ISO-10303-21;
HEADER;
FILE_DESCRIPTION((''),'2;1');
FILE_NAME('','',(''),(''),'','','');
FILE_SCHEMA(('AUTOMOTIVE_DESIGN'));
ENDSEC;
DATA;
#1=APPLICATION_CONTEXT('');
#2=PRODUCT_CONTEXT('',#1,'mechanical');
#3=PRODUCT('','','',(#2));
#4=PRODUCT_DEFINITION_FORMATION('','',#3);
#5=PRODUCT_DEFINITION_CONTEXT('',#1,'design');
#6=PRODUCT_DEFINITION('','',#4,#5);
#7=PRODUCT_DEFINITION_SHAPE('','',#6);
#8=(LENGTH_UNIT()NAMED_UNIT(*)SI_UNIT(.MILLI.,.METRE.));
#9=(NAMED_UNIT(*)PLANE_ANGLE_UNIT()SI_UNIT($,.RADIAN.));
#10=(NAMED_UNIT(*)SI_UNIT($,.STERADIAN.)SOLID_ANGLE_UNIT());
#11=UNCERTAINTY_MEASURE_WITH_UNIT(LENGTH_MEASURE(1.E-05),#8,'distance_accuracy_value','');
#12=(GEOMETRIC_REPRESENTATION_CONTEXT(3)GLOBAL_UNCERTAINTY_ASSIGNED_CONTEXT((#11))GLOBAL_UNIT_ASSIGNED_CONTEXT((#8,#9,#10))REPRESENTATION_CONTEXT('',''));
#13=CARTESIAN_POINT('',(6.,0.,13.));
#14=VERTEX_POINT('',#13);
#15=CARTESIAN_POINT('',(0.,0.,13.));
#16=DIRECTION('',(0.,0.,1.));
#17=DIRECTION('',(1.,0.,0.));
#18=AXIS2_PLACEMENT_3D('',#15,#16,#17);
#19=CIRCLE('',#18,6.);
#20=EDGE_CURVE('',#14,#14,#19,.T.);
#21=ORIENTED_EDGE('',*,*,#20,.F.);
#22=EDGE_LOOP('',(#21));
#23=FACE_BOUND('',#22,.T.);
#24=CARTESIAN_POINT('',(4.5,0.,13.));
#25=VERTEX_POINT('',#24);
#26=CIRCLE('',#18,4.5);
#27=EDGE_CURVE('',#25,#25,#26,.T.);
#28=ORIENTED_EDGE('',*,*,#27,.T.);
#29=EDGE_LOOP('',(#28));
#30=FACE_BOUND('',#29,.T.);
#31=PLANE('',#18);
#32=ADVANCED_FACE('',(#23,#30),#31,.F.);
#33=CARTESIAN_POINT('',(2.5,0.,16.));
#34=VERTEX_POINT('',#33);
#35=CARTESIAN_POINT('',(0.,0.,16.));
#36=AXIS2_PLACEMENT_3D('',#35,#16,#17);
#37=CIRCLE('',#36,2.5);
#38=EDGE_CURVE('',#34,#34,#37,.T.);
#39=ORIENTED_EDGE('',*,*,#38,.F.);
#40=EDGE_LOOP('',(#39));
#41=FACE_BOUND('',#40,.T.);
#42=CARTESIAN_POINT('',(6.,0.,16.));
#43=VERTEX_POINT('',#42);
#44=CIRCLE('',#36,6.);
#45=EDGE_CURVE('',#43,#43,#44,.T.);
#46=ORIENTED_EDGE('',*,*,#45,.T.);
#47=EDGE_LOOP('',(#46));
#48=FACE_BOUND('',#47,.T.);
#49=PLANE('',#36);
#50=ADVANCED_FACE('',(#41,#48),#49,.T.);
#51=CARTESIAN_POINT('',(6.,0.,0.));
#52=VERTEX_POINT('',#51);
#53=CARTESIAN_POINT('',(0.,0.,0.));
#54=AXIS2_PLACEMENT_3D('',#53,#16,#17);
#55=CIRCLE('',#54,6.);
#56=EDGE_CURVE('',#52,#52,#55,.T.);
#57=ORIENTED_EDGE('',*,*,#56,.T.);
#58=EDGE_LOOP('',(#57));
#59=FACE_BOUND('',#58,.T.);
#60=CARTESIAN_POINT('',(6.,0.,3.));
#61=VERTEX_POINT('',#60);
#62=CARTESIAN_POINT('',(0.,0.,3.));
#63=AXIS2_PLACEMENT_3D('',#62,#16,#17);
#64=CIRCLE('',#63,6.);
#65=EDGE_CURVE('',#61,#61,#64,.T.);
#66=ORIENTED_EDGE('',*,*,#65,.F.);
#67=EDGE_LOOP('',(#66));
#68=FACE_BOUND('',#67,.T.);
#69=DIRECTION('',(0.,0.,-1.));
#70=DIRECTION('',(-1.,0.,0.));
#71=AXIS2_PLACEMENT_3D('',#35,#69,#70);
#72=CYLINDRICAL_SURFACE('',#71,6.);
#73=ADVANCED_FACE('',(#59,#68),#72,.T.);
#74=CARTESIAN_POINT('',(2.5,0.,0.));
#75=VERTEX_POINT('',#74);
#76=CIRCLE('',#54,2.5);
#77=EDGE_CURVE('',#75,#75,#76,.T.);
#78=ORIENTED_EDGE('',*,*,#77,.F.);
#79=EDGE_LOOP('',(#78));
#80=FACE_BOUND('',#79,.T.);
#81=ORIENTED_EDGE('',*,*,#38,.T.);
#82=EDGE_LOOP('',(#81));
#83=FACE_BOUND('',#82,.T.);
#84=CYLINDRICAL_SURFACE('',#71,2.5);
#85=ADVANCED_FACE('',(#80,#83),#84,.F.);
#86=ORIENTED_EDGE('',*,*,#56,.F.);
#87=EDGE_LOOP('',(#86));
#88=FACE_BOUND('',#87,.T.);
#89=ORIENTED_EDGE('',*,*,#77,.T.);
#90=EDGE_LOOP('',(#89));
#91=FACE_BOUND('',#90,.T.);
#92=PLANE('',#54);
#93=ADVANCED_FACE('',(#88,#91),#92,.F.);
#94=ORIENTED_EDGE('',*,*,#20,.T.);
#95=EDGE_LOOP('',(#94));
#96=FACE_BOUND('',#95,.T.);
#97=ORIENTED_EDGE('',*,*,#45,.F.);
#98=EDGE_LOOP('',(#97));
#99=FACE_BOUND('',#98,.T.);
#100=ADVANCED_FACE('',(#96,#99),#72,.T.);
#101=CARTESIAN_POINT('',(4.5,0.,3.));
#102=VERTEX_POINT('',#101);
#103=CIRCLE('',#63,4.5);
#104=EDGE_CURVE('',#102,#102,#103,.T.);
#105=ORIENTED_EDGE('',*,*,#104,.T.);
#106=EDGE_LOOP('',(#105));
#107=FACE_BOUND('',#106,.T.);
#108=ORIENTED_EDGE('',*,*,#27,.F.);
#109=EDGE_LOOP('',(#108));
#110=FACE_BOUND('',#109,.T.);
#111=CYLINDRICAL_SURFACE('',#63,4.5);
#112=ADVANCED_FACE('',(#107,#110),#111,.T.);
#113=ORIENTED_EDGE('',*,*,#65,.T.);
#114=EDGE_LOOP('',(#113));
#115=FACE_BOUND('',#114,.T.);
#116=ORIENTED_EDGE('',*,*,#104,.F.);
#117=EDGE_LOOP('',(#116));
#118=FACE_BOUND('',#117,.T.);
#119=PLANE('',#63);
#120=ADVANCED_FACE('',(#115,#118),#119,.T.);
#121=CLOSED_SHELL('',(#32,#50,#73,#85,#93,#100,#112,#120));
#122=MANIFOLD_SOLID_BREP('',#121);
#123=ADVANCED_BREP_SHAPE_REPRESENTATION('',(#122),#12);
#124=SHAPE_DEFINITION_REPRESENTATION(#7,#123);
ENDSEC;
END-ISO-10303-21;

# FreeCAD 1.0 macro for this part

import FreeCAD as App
import Part
import Sketcher

V = App.Vector
Q = App.Units.Quantity

doc = App.newDocument("Part")
params = doc.addObject("Spreadsheet::Sheet", "Params")
for row, (alias, value) in enumerate([
    ("sketch1_diameter", "12 mm"),
    ("sketch1_diameter2", "5 mm"),
    ("pad1_length", "16 mm"),
    ("sketch2_diameter", "12 mm"),
    ("sketch2_diameter2", "9 mm"),
    ("pocket1_length", "10 mm"),
], start=1):
    params.set(f"A{row}", alias)
    params.set(f"B{row}", "=" + value)
    params.setAlias(f"B{row}", alias)

body = doc.addObject("PartDesign::Body", "Body")

# Sketch on XY plane
sketch1 = doc.addObject("Sketcher::SketchObject", "Sketch")
body.addObject(sketch1)
sketch1.AttachmentSupport = (doc.XY_Plane, [""])
sketch1.MapMode = "FlatFace"
sketch1.addGeometry([
    Part.Circle(V(0, 0, 0), V(0, 0, 1), 6),
    Part.Circle(V(0, 0, 0), V(0, 0, 1), 2.5),
], False)
sketch1.addConstraint([
    Sketcher.Constraint("Coincident", 0, 3, -1, 1),
    Sketcher.Constraint("Coincident", 1, 3, -1, 1),
    Sketcher.Constraint("Diameter", 0, Q("12 mm")),
    Sketcher.Constraint("Diameter", 1, Q("5 mm")),
])
sketch1.setExpression("Constraints[2]", "Params.sketch1_diameter")
sketch1.setExpression("Constraints[3]", "Params.sketch1_diameter2")
pad1 = doc.addObject("PartDesign::Pad", "Pad")
body.addObject(pad1)
pad1.Profile = sketch1
pad1.setExpression("Length", "Params.pad1_length")

# Sketch on XY plane
sketch2 = doc.addObject("Sketcher::SketchObject", "Sketch001")
body.addObject(sketch2)
sketch2.AttachmentSupport = (doc.XY_Plane, [""])
sketch2.MapMode = "FlatFace"
sketch2.AttachmentOffset = App.Placement(V(0, 0, 3), App.Rotation())
sketch2.addGeometry([
    Part.Circle(V(0, 0, 0), V(0, 0, 1), 6),
    Part.Circle(V(0, 0, 0), V(0, 0, 1), 4.5),
], False)
sketch2.addConstraint([
    Sketcher.Constraint("Coincident", 0, 3, -1, 1),
    Sketcher.Constraint("Coincident", 1, 3, -1, 1),
    Sketcher.Constraint("Diameter", 0, Q("12 mm")),
    Sketcher.Constraint("Diameter", 1, Q("9 mm")),
])
sketch2.setExpression("Constraints[2]", "Params.sketch2_diameter")
sketch2.setExpression("Constraints[3]", "Params.sketch2_diameter2")
pocket1 = doc.addObject("PartDesign::Pocket", "Pocket")
body.addObject(pocket1)
pocket1.Profile = sketch2
pocket1.setExpression("Length", "Params.pocket1_length")
pocket1.Reversed = True

doc.recompute()
